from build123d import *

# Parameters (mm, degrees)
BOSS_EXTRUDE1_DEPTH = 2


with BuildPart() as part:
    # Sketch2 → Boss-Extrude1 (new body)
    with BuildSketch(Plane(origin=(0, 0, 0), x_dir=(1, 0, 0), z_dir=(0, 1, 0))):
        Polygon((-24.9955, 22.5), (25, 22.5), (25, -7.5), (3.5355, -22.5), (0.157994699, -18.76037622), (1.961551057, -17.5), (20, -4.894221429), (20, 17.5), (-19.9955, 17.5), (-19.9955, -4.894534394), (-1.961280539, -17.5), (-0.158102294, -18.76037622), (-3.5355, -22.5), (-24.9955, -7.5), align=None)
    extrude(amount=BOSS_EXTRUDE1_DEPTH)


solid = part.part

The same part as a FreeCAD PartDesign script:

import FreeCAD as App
import Part
import Sketcher
from FreeCAD import Vector

doc = App.newDocument("Part")
params = doc.addObject("Spreadsheet::Sheet", "Params")
for row, (alias, value) in enumerate([
    ("sketch1_height", "30 mm"),
    ("sketch1_length", "2.2 mm"),
    ("pad1_length", "2 mm"),
], start=1):
    params.set(f"A{row}", alias)
    params.set(f"B{row}", "=" + value)
    params.setAlias(f"B{row}", alias)

body = doc.addObject("PartDesign::Body", "Body")

# Sketch on XZ plane
sketch1 = body.newObject("Sketcher::SketchObject", "Sketch")
sketch1.AttachmentSupport = (doc.getObject("XZ_Plane"), [""])
sketch1.MapMode = "FlatFace"
sketch1.addGeometry([
    Part.LineSegment(Vector(25, -22.5, 0), Vector(-25, -22.5, 0)),  # 0
    Part.LineSegment(Vector(-25, -22.5, 0), Vector(-25, 7.5, 0)),  # 1
    Part.LineSegment(Vector(-25, 7.5, 0), Vector(-3.5, 22.5, 0)),  # 2
    Part.LineSegment(Vector(-3.5, 22.5, 0), Vector(-0.2, 18.8, 0)),  # 3
    Part.LineSegment(Vector(-0.2, 18.8, 0), Vector(-2, 17.5, 0)),  # 4
    Part.LineSegment(Vector(-2, 17.5, 0), Vector(-20, 4.9, 0)),  # 5
    Part.LineSegment(Vector(-20, 4.9, 0), Vector(-20, -17.5, 0)),  # 6
    Part.LineSegment(Vector(-20, -17.5, 0), Vector(20, -17.5, 0)),  # 7
    Part.LineSegment(Vector(20, -17.5, 0), Vector(20, 4.9, 0)),  # 8
    Part.LineSegment(Vector(20, 4.9, 0), Vector(2, 17.5, 0)),  # 9
    Part.LineSegment(Vector(2, 17.5, 0), Vector(0.2, 18.8, 0)),  # 10
    Part.LineSegment(Vector(0.2, 18.8, 0), Vector(3.5, 22.5, 0)),  # 11
    Part.LineSegment(Vector(3.5, 22.5, 0), Vector(25, 7.5, 0)),  # 12
    Part.LineSegment(Vector(25, 7.5, 0), Vector(25, -22.5, 0)),  # 13
], False)
sketch1.addConstraint([
    Sketcher.Constraint("Coincident", 0, 2, 1, 1),
    Sketcher.Constraint("Coincident", 1, 2, 2, 1),
    Sketcher.Constraint("Coincident", 2, 2, 3, 1),
    Sketcher.Constraint("Coincident", 3, 2, 4, 1),
    Sketcher.Constraint("Coincident", 4, 2, 5, 1),
    Sketcher.Constraint("Coincident", 5, 2, 6, 1),
    Sketcher.Constraint("Coincident", 6, 2, 7, 1),
    Sketcher.Constraint("Coincident", 7, 2, 8, 1),
    Sketcher.Constraint("Coincident", 8, 2, 9, 1),
    Sketcher.Constraint("Coincident", 9, 2, 10, 1),
    Sketcher.Constraint("Coincident", 10, 2, 11, 1),
    Sketcher.Constraint("Coincident", 11, 2, 12, 1),
    Sketcher.Constraint("Coincident", 12, 2, 13, 1),
    Sketcher.Constraint("Coincident", 13, 2, 0, 1),
    Sketcher.Constraint("Horizontal", 0),
    Sketcher.Constraint("Vertical", 1),
    Sketcher.Constraint("Vertical", 6),
    Sketcher.Constraint("Horizontal", 7),
    Sketcher.Constraint("Vertical", 8),
    Sketcher.Constraint("Vertical", 13),
    Sketcher.Constraint("Symmetric", 2, 2, 11, 2, -2),
    Sketcher.Constraint("Parallel", 2, 4),
    Sketcher.Constraint("Parallel", 4, 5),
    Sketcher.Constraint("Parallel", 9, 10),
    Sketcher.Constraint("Parallel", 10, 12),
    Sketcher.Constraint("Horizontal", 4, 2, 9, 2),
    Sketcher.Constraint("Horizontal", 3, 2, 10, 2),
    Sketcher.Constraint("Horizontal", 1, 2, 12, 2),
    Sketcher.Constraint("DistanceY", 1, 1, 1, 2, 30.0),
    Sketcher.Constraint("DistanceX", -1, 1, 7, 2, 20.0),
    Sketcher.Constraint("DistanceX", -1, 1, 12, 2, 25.0),
    Sketcher.Constraint("DistanceY", 1, 2, 2, 2, 15.0),
    Sketcher.Constraint("DistanceY", 4, 2, 2, 2, 5.0),
    Sketcher.Constraint("DistanceX", 1, 2, 5, 2, 5.0),
    Sketcher.Constraint("DistanceY", 0, 2, 6, 2, 5.0),
    Sketcher.Constraint("Distance", 4, 2.2),
    Sketcher.Constraint("DistanceY", 0, 2, -1, 1, 22.5),
    Sketcher.Constraint("DistanceX", 1, 2, 2, 2, 21.46),
    Sketcher.Constraint("DistanceX", 0, 2, 0, 1, 49.9955),
    Sketcher.Constraint("DistanceY", 8, 1, 8, 2, 22.394221),
    Sketcher.Constraint("DistanceY", 6, 2, 6, 1, 22.394534),
])
sketch1.setExpression("Constraints[28]", "Params.sketch1_height")
sketch1.setExpression("Constraints[35]", "Params.sketch1_length")
pad1 = body.newObject("PartDesign::Pad", "Pad")
pad1.Profile = sketch1
pad1.setExpression("Length", "Params.pad1_length")
pad1.Reversed = True

doc.recompute()
